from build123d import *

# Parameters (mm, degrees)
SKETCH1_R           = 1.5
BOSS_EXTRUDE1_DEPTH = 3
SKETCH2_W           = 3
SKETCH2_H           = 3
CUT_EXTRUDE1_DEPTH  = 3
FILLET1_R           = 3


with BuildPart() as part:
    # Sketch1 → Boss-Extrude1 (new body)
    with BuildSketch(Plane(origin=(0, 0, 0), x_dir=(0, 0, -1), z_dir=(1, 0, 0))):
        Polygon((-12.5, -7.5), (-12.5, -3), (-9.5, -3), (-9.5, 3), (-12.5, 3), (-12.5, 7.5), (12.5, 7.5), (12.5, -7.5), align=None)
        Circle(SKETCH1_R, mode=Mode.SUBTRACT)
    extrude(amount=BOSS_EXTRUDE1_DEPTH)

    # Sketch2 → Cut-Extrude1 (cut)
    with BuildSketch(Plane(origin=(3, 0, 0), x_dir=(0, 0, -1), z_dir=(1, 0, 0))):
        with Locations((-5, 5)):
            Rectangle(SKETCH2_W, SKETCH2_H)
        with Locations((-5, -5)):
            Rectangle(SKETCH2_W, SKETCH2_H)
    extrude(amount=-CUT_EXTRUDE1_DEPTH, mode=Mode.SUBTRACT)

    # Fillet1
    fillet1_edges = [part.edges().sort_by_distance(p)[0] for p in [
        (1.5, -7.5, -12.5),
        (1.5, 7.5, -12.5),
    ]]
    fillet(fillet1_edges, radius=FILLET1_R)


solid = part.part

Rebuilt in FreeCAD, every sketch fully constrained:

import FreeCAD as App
import Part
import Sketcher
Q = App.Units.Quantity


def edges_at(feature, points):
    """Names of the edges that pass closest to the given points."""
    edges = feature.Shape.Edges
    near = lambda p: min(range(len(edges)), key=lambda i: edges[i].distToShape(Part.Vertex(*p))[0])
    return sorted({f"Edge{near(p) + 1}" for p in points})


def add_polygon(sketch, points):
    """Adds a closed chain of lines whose ends are joined by coincident constraints."""
    first, n = sketch.GeometryCount, len(points)
    for a, b in zip(points, points[1:] + points[:1]):
        sketch.addGeometry(Part.LineSegment(App.Vector(*a, 0), App.Vector(*b, 0)), False)
    for i in range(n):
        sketch.addConstraint(Sketcher.Constraint("Coincident", first + i, 2, first + (i + 1) % n, 1))

doc = App.newDocument("Part")
body = doc.addObject("PartDesign::Body", "Body")

sketch1 = body.newObject("Sketcher::SketchObject", "Sketch")
sketch1.AttachmentSupport = (doc.getObject("YZ_Plane"), [""])
sketch1.MapMode = "FlatFace"
add_polygon(sketch1, [(-3, 12.5), (-7.5, 12.5), (-7.5, -12.5), (7.5, -12.5), (7.5, 12.5), (3, 12.5), (3, 9.5), (-3, 9.5)])
sketch1.addGeometry(Part.Circle(App.Vector(0, 0, 0), App.Vector(0, 0, 1), 1.5), False)
sketch1.addConstraint([
    Sketcher.Constraint("Horizontal", 0),
    Sketcher.Constraint("Vertical", 1),
    Sketcher.Constraint("Horizontal", 2),
    Sketcher.Constraint("Vertical", 3),
    Sketcher.Constraint("Horizontal", 4),
    Sketcher.Constraint("Vertical", 5),
    Sketcher.Constraint("Horizontal", 6),
    Sketcher.Constraint("Vertical", 7),
    Sketcher.Constraint("Coincident", 8, 3, -1, 1),
    Sketcher.Constraint("Symmetric", 0, 2, 2, 2, -1, 1),
    Sketcher.Constraint("Symmetric", 4, 2, 7, 2, -2),
    Sketcher.Constraint("Diameter", 8, Q("3 mm")),
    Sketcher.Constraint("DistanceX", 2, 1, 2, 2, Q("15 mm")),
    Sketcher.Constraint("DistanceX", 6, 2, 6, 1, Q("6 mm")),
    Sketcher.Constraint("DistanceY", 1, 2, 1, 1, Q("25 mm")),
    Sketcher.Constraint("DistanceY", 5, 2, 5, 1, Q("3 mm")),
])
pad1 = body.newObject("PartDesign::Pad", "Pad")
pad1.Profile = sketch1
pad1.Length = 3

sketch2 = body.newObject("Sketcher::SketchObject", "Sketch001")
sketch2.AttachmentSupport = (doc.getObject("YZ_Plane"), [""])
sketch2.MapMode = "FlatFace"
sketch2.AttachmentOffset = App.Placement(App.Vector(0, 0, 3), App.Rotation())
add_polygon(sketch2, [(6.5, 6.5), (3.5, 6.5), (3.5, 3.5), (6.5, 3.5)])
add_polygon(sketch2, [(-3.5, 6.5), (-6.5, 6.5), (-6.5, 3.5), (-3.5, 3.5)])
sketch2.addConstraint([
    Sketcher.Constraint("Horizontal", 0),
    Sketcher.Constraint("Vertical", 1),
    Sketcher.Constraint("Horizontal", 2),
    Sketcher.Constraint("Vertical", 3),
    Sketcher.Constraint("Horizontal", 4),
    Sketcher.Constraint("Vertical", 5),
    Sketcher.Constraint("Horizontal", 6),
    Sketcher.Constraint("Vertical", 7),
    Sketcher.Constraint("Symmetric", 3, 2, 4, 2, -2),
    Sketcher.Constraint("Symmetric", 1, 2, 6, 2, -2),
    Sketcher.Constraint("Equal", 6, 1),
    Sketcher.Constraint("DistanceX", 0, 2, 0, 1, Q("3 mm")),
    Sketcher.Constraint("DistanceX", 4, 2, 0, 2, Q("10 mm")),
    Sketcher.Constraint("DistanceY", -1, 1, 0, 2, Q("6.5 mm")),
])
pocket1 = body.newObject("PartDesign::Pocket", "Pocket")
pocket1.Profile = sketch2
pocket1.Length = 3
doc.recompute()

fillet = body.newObject("PartDesign::Fillet", "Fillet")
fillet.Base = (pocket1, edges_at(pocket1, [(1.5, -7.5, -12.5), (1.5, 7.5, -12.5)]))
fillet.Radius = 3

doc.recompute()
